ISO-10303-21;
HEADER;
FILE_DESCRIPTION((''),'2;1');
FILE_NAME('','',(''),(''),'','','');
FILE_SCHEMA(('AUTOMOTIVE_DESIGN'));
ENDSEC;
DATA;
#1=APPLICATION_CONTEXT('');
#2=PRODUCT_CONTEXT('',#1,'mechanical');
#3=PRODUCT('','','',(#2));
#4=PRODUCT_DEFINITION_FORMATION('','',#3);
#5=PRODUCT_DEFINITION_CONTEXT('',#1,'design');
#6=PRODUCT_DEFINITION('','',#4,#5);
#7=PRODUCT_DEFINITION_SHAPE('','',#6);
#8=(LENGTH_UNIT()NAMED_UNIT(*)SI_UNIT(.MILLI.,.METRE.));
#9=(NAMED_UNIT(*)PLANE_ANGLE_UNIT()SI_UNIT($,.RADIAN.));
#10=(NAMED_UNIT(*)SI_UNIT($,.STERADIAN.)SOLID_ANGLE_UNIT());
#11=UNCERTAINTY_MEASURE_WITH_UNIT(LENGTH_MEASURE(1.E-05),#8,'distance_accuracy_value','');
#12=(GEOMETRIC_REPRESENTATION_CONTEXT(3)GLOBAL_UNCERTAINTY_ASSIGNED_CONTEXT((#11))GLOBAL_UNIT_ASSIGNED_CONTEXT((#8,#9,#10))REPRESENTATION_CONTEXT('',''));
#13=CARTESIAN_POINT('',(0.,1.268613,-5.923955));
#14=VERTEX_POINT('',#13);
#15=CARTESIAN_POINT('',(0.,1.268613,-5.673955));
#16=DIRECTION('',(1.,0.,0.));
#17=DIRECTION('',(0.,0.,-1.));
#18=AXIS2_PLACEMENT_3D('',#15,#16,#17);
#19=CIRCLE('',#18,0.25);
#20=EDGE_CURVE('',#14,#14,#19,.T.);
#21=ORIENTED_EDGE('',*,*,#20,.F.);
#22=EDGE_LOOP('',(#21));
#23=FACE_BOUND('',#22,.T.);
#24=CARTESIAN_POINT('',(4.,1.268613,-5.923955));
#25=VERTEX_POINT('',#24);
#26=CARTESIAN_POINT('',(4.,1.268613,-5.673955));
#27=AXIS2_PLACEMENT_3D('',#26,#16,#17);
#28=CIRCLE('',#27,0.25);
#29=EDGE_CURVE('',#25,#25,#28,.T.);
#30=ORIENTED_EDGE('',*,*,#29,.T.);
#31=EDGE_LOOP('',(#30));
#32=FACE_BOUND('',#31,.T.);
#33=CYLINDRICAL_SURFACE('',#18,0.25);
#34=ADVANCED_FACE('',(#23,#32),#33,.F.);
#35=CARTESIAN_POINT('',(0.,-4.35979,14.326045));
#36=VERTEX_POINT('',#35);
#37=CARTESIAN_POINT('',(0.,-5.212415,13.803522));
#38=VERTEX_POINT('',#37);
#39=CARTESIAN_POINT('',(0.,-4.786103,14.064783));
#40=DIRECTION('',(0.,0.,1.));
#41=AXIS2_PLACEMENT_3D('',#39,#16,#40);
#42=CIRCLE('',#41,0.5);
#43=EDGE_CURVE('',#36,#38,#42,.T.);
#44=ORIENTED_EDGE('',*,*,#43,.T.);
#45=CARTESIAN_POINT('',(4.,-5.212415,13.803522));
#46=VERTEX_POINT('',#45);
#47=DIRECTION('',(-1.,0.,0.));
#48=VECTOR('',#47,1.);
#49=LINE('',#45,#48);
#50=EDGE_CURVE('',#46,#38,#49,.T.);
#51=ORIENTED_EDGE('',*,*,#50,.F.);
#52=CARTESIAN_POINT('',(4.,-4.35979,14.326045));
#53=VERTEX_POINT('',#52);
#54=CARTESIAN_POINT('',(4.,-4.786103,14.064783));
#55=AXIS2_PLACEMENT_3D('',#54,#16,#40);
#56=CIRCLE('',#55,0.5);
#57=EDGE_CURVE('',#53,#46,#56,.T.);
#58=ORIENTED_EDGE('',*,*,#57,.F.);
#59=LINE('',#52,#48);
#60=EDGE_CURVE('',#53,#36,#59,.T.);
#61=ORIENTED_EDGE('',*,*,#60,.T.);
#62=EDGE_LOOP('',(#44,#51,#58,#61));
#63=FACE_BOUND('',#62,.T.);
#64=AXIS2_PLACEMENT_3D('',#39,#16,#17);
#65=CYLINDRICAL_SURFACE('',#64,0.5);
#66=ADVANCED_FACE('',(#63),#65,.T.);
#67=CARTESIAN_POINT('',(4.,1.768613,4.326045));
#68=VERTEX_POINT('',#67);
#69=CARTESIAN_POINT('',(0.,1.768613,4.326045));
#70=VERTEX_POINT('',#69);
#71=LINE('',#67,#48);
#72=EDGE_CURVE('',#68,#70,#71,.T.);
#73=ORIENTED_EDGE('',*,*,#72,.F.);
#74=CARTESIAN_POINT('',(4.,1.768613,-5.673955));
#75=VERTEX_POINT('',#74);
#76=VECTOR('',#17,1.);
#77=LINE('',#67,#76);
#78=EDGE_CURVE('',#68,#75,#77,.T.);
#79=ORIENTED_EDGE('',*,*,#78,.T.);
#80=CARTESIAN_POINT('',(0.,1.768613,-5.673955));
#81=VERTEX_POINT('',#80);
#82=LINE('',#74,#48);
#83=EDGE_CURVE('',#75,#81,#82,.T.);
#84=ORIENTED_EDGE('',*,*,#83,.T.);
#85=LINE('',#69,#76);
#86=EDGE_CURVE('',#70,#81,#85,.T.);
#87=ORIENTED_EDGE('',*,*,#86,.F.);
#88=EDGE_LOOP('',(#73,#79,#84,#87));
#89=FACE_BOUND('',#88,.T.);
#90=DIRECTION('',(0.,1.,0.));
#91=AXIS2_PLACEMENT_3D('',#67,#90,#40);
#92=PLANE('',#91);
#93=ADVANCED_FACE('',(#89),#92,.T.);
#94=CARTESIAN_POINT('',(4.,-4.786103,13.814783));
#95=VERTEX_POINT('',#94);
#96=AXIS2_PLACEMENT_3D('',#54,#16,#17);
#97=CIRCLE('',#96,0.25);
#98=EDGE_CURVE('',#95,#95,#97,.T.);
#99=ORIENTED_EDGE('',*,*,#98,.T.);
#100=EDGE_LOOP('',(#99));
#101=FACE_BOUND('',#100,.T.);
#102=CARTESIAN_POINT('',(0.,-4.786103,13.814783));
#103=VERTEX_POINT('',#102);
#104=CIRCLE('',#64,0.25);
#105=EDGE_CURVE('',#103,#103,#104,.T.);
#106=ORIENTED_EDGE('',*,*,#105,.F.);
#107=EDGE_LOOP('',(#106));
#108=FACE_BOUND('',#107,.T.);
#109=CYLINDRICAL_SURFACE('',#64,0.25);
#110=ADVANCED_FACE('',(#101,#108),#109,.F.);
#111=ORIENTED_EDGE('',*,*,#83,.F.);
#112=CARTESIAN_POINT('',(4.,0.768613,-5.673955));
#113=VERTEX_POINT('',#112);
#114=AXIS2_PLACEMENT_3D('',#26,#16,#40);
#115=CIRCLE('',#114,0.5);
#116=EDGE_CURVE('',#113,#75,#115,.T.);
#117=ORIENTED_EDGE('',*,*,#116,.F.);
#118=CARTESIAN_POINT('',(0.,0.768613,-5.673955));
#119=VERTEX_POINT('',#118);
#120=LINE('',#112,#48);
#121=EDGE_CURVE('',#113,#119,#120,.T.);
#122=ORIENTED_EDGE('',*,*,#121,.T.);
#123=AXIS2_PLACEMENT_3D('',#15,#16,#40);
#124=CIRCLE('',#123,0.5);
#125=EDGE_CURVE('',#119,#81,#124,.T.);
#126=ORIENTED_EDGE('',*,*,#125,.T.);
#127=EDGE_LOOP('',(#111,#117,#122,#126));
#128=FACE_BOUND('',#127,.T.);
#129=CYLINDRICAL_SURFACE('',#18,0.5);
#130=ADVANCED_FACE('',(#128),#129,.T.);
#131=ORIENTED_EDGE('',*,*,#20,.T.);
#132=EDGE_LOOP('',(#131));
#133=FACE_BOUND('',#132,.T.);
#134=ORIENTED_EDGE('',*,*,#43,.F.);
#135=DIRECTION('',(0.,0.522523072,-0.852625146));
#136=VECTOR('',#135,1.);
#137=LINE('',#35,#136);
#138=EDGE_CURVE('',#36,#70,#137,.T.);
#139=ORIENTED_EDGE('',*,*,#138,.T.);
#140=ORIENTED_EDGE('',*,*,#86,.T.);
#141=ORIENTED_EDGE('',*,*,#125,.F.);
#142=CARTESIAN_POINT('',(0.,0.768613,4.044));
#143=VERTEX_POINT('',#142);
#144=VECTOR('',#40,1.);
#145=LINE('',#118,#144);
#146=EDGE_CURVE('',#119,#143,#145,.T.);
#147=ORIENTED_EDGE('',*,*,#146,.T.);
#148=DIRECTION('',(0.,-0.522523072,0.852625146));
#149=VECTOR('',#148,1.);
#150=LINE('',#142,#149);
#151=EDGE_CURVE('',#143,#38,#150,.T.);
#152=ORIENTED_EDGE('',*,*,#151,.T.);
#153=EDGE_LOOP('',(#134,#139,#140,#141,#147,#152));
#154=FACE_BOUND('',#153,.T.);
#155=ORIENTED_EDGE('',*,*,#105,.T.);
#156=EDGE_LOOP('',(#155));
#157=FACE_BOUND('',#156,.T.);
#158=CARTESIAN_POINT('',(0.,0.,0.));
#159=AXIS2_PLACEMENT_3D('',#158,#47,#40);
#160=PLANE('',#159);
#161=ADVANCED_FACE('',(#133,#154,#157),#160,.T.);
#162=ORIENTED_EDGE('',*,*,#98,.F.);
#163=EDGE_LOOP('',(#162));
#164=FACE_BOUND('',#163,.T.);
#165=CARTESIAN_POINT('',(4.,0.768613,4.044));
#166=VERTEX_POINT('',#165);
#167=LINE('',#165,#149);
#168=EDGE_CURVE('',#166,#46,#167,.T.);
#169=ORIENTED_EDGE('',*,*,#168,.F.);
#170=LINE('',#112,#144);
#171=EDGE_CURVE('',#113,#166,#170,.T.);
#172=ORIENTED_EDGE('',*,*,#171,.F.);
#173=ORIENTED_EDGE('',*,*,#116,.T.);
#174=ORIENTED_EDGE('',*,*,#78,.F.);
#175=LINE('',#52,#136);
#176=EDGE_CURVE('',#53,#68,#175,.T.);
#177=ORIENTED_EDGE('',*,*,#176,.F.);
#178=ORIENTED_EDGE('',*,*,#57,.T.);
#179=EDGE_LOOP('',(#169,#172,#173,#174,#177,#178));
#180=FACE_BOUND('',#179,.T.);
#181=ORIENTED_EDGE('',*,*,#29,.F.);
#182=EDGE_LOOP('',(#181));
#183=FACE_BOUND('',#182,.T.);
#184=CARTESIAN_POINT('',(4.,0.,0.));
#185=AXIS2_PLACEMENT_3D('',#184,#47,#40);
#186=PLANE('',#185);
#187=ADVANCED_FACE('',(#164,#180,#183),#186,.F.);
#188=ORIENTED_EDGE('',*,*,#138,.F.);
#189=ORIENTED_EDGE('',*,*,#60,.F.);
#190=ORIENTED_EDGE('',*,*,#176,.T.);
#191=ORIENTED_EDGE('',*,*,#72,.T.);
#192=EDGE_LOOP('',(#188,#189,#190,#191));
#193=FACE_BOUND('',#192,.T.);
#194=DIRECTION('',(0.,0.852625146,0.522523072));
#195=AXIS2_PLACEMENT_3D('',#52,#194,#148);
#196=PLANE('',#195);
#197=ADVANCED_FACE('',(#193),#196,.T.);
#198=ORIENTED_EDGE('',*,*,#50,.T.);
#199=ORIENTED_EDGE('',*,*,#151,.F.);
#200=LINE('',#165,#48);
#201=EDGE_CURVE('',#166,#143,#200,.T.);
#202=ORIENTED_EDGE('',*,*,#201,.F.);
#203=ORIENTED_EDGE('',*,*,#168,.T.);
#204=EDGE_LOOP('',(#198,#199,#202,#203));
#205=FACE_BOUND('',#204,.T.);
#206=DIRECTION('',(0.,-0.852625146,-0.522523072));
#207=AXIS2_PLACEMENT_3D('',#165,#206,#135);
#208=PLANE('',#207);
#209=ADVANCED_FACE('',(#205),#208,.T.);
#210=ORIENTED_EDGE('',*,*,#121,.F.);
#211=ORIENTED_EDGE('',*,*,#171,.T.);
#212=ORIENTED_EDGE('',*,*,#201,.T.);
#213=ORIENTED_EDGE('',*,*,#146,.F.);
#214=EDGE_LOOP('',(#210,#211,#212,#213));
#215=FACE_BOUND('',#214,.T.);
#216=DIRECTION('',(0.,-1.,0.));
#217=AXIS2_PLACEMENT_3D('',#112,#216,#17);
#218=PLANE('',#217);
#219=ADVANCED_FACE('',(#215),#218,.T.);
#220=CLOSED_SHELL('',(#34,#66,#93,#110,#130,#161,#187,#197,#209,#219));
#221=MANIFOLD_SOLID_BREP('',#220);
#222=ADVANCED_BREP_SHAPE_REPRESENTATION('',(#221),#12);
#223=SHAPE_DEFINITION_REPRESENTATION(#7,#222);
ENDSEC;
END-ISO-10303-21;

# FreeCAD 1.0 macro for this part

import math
import FreeCAD as App
import Part
import Sketcher
Q = App.Units.Quantity


def add_polygon(sketch, points):
    """Adds a closed chain of lines whose ends are joined by coincident constraints."""
    first, n = sketch.GeometryCount, len(points)
    for a, b in zip(points, points[1:] + points[:1]):
        sketch.addGeometry(Part.LineSegment(App.Vector(*a, 0), App.Vector(*b, 0)), False)
    for i in range(n):
        sketch.addConstraint(Sketcher.Constraint("Coincident", first + i, 2, first + (i + 1) % n, 1))

doc = App.newDocument("Part")
body = doc.addObject("PartDesign::Body", "Body")

sketch1 = body.newObject("Sketcher::SketchObject", "Sketch")
sketch1.AttachmentSupport = (doc.getObject("YZ_Plane"), [""])
sketch1.MapMode = "FlatFace"
add_polygon(sketch1, [(1.8, -5.7), (1.8, 4.3), (-4.4, 14.3), (-5.2, 13.8), (0.8, 4), (0.8, -5.7)])
sketch1.addConstraint([
    Sketcher.Constraint("Vertical", 0),
    Sketcher.Constraint("Vertical", 4),
    Sketcher.Constraint("Horizontal", 5),
    Sketcher.Constraint("Perpendicular", 1, 2),
    Sketcher.Constraint("Perpendicular", 2, 3),
    Sketcher.Constraint("DistanceX", 5, 1, 5, 2, Q("1 mm")),
    Sketcher.Constraint("DistanceY", 0, 1, 0, 2, Q("10 mm")),
    Sketcher.Constraint("Distance", 2, Q("1 mm")),
    Sketcher.Constraint("DistanceY", 0, 2, 1, 2, Q("10 mm")),
    Sketcher.Constraint("DistanceY", -1, 1, 3, 2, Q("4.044 mm")),
    Sketcher.Constraint("Distance", 3, Q("11.446439 mm")),
    Sketcher.Constraint("DistanceX", 1, 2, -1, 1, Q("4.35979 mm")),
])
pad1 = body.newObject("PartDesign::Pad", "Pad")
pad1.Profile = sketch1
pad1.Length = 4

sketch2 = body.newObject("Sketcher::SketchObject", "Sketch001")
sketch2.AttachmentSupport = (doc.getObject("YZ_Plane"), [""])
sketch2.MapMode = "FlatFace"
sketch2.AttachmentOffset = App.Placement(App.Vector(0, 0, 4), App.Rotation())
sketch2.addGeometry([
    Part.LineSegment(App.Vector(1.8, -5.7, 0), App.Vector(0.8, -5.7, 0)),
    Part.ArcOfCircle(Part.Circle(App.Vector(1.3, -5.7, 0), App.Vector(0, 0, 1), 0.5), math.radians(180), math.radians(360)),
    Part.LineSegment(App.Vector(-5.2, 13.8, 0), App.Vector(-4.4, 14.3, 0)),
    Part.ArcOfCircle(Part.Circle(App.Vector(-4.8, 14.1, 0), App.Vector(0, 0, 1), 0.5), math.radians(32), math.radians(212)),
], False)
sketch2.addConstraint([
    Sketcher.Constraint("Coincident", 0, 1, 1, 2),
    Sketcher.Constraint("Coincident", 1, 1, 0, 2),
    Sketcher.Constraint("Coincident", 2, 1, 3, 2),
    Sketcher.Constraint("Coincident", 3, 1, 2, 2),
    Sketcher.Constraint("Horizontal", 0),
    Sketcher.Constraint("Equal", 1, 3),
    Sketcher.Constraint("Horizontal", 1, 3, 0, 1),
    Sketcher.Constraint("Radius", 1, Q("0.5 mm")),
    Sketcher.Constraint("DistanceY", 1, 1, 3, 1, Q("20 mm")),
    Sketcher.Constraint("DistanceY", -1, 1, 2, 1, Q("13.803522 mm")),
    Sketcher.Constraint("DistanceX", 3, 1, -1, 1, Q("4.35979 mm")),
    Sketcher.Constraint("DistanceY", 1, 3, 3, 3, Q("19.738738 mm")),
    Sketcher.Constraint("DistanceY", 2, 1, 3, 3, Q("0.261262 mm")),
    Sketcher.Constraint("DistanceX", 2, 1, 1, 1, Q("5.981028 mm")),
])
pad2 = body.newObject("PartDesign::Pad", "Pad001")
pad2.Profile = sketch2
pad2.Length = 4
pad2.Reversed = True

sketch3 = body.newObject("Sketcher::SketchObject", "Sketch002")
sketch3.AttachmentSupport = (doc.getObject("YZ_Plane"), [""])
sketch3.MapMode = "FlatFace"
sketch3.AttachmentOffset = App.Placement(App.Vector(0, 0, 4), App.Rotation())
sketch3.addGeometry([
    Part.Circle(App.Vector(-4.79, 14.06, 0), App.Vector(0, 0, 1), 0.25),
    Part.Circle(App.Vector(1.27, -5.67, 0), App.Vector(0, 0, 1), 0.25),
], False)
sketch3.addConstraint([
    Sketcher.Constraint("Equal", 0, 1),
    Sketcher.Constraint("Diameter", 0, Q("0.5 mm")),
    Sketcher.Constraint("DistanceY", 1, 3, 0, 3, Q("19.738738 mm")),
    Sketcher.Constraint("DistanceX", 0, 3, -1, 1, Q("4.786103 mm")),
    Sketcher.Constraint("DistanceY", -1, 1, 0, 3, Q("14.064783 mm")),
    Sketcher.Constraint("DistanceX", -1, 1, 1, 3, Q("1.268613 mm")),
])
pocket1 = body.newObject("PartDesign::Pocket", "Pocket")
pocket1.Profile = sketch3
pocket1.Length = 4

doc.recompute()
